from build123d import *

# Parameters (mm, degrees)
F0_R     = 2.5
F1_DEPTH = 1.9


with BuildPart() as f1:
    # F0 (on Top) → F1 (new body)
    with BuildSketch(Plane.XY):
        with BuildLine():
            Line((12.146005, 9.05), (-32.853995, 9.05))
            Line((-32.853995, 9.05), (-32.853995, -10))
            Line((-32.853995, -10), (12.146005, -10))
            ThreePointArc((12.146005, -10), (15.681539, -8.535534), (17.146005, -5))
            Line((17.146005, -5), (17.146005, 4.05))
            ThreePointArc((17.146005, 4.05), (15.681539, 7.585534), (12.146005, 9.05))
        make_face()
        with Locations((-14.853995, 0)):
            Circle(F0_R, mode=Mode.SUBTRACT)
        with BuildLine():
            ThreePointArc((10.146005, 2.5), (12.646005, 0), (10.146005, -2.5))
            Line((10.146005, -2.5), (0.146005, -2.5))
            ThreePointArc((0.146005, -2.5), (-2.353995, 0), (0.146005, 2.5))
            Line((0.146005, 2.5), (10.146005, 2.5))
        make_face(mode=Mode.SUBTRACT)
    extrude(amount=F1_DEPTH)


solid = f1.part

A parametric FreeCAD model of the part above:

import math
import FreeCAD as App
import Part
import Sketcher
Q = App.Units.Quantity

doc = App.newDocument("Part")
body = doc.addObject("PartDesign::Body", "Body")

# Sketch on XY plane
sketch1 = doc.addObject("Sketcher::SketchObject", "Sketch")
body.addObject(sketch1)
sketch1.AttachmentSupport = (doc.XY_Plane, [""])
sketch1.MapMode = "FlatFace"
sketch1.addGeometry([
    Part.LineSegment(App.Vector(12.146005, 9.05, 0), App.Vector(-32.853995, 9.05, 0)),  # 0
    Part.LineSegment(App.Vector(-32.853995, 9.05, 0), App.Vector(-32.853995, -10, 0)),  # 1
    Part.LineSegment(App.Vector(-32.853995, -10, 0), App.Vector(12.146005, -10, 0)),  # 2
    Part.ArcOfCircle(Part.Circle(App.Vector(12.146005, -5, 0), App.Vector(0, 0, 1), 5), math.radians(-90.000004), math.radians(0.000004)),  # 3
    Part.LineSegment(App.Vector(17.146005, -5, 0), App.Vector(17.146005, 4.05, 0)),  # 4
    Part.ArcOfCircle(Part.Circle(App.Vector(12.146005, 4.05, 0), App.Vector(0, 0, 1), 5), math.radians(-0.000004), math.radians(90.000004)),  # 5
    Part.Circle(App.Vector(-14.853995, 0, 0), App.Vector(0, 0, 1), 2.5),  # 6
    Part.LineSegment(App.Vector(0.146005, 2.5, 0), App.Vector(10.146005, 2.5, 0)),  # 7
    Part.ArcOfCircle(Part.Circle(App.Vector(10.146005, 0, 0), App.Vector(0, 0, 1), 2.5), math.radians(-90), math.radians(90)),  # 8
    Part.LineSegment(App.Vector(10.146005, -2.5, 0), App.Vector(0.146005, -2.5, 0)),  # 9
    Part.ArcOfCircle(Part.Circle(App.Vector(0.146005, 0, 0), App.Vector(0, 0, 1), 2.5), math.radians(90), math.radians(270)),  # 10
], False)
sketch1.addConstraint([
    Sketcher.Constraint("Coincident", 0, 2, 1, 1),
    Sketcher.Constraint("Coincident", 1, 2, 2, 1),
    Sketcher.Constraint("Tangent", 2, 2, 3, 1),
    Sketcher.Constraint("Tangent", 3, 2, 4, 1),
    Sketcher.Constraint("Tangent", 4, 2, 5, 1),
    Sketcher.Constraint("Tangent", 5, 2, 0, 1),
    Sketcher.Constraint("Tangent", 7, 2, 8, 2),
    Sketcher.Constraint("Tangent", 8, 1, 9, 1),
    Sketcher.Constraint("Tangent", 9, 2, 10, 2),
    Sketcher.Constraint("Tangent", 10, 1, 7, 1),
    Sketcher.Constraint("Horizontal", 0),
    Sketcher.Constraint("Vertical", 1),
    Sketcher.Constraint("Horizontal", 2),
    Sketcher.Constraint("Vertical", 4),
    Sketcher.Constraint("Horizontal", 7),
    Sketcher.Constraint("Horizontal", 9),
    Sketcher.Constraint("Equal", 3, 5),
    Sketcher.Constraint("Equal", 6, 8),
    Sketcher.Constraint("PointOnObject", 6, 3, -1),
    Sketcher.Constraint("PointOnObject", 8, 3, -1),
    Sketcher.Constraint("Diameter", 6, Q("5 mm")),
    Sketcher.Constraint("Radius", 3, Q("5 mm")),
    Sketcher.Constraint("DistanceX", 0, 2, 0, 1, Q("45 mm")),
    Sketcher.Constraint("DistanceX", 7, 1, 7, 2, Q("10 mm")),
    Sketcher.Constraint("DistanceY", 3, 3, -1, 1, Q("5 mm")),
    Sketcher.Constraint("DistanceX", 6, 3, 5, 3, Q("27 mm")),
    Sketcher.Constraint("DistanceX", 8, 3, 5, 3, Q("2 mm")),
    Sketcher.Constraint("DistanceY", 1, 2, 1, 1, Q("19.05 mm")),
    Sketcher.Constraint("DistanceX", -1, 1, 3, 3, Q("12.146005 mm")),
])
pad1 = doc.addObject("PartDesign::Pad", "Pad")
body.addObject(pad1)
pad1.Profile = sketch1
pad1.Length = 1.9

doc.recompute()
